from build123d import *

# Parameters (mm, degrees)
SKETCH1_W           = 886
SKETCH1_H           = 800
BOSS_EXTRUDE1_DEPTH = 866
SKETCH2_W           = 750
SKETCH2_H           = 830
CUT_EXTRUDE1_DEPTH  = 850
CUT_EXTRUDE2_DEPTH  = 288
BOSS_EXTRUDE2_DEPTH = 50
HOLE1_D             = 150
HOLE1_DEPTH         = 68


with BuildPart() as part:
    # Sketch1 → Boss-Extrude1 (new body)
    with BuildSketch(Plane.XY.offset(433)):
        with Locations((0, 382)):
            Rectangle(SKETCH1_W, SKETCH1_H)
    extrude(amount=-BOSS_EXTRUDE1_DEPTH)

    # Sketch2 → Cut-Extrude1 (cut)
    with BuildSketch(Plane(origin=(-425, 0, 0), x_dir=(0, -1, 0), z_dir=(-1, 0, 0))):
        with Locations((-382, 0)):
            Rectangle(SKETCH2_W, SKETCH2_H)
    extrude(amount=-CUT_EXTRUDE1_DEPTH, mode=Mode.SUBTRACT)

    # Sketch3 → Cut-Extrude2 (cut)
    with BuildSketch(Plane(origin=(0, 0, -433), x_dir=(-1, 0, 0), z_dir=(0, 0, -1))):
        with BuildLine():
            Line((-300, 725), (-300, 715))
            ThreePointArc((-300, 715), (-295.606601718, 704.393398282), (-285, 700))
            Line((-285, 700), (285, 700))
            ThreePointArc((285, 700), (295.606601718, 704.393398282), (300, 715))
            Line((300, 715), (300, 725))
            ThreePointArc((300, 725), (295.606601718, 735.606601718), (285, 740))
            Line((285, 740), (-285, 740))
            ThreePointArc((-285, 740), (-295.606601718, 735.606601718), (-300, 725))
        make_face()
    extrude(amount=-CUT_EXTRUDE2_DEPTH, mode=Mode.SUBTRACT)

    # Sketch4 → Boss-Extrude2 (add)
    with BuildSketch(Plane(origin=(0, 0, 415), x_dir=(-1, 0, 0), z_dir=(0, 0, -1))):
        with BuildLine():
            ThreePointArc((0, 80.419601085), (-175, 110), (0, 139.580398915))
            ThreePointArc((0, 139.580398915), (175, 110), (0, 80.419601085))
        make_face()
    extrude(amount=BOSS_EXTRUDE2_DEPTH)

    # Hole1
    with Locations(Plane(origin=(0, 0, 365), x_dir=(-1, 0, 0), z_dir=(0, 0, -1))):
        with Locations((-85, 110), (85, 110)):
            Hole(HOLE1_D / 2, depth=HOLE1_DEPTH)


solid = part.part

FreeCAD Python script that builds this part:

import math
import FreeCAD as App
import Part
import Sketcher
from FreeCAD import Vector
Q = App.Units.Quantity


def add_polygon(sketch, points):
    """Adds a closed chain of lines whose ends are joined by coincident constraints."""
    first, n = sketch.GeometryCount, len(points)
    for a, b in zip(points, points[1:] + points[:1]):
        sketch.addGeometry(Part.LineSegment(App.Vector(*a, 0), App.Vector(*b, 0)), False)
    for i in range(n):
        sketch.addConstraint(Sketcher.Constraint("Coincident", first + i, 2, first + (i + 1) % n, 1))

doc = App.newDocument("Part")
body = doc.addObject("PartDesign::Body", "Body")

# Sketch on XY plane
sketch1 = body.newObject("Sketcher::SketchObject", "Sketch")
sketch1.AttachmentSupport = (doc.getObject("XY_Plane"), [""])
sketch1.MapMode = "FlatFace"
sketch1.AttachmentOffset = App.Placement(Vector(0, 0, 433), App.Rotation())
add_polygon(sketch1, [(-443, 782), (-443, -18), (443, -18), (443, 782)])  # lines 0-3
sketch1.addConstraint([
    Sketcher.Constraint("Vertical", 0),
    Sketcher.Constraint("Horizontal", 1),
    Sketcher.Constraint("Vertical", 2),
    Sketcher.Constraint("Horizontal", 3),
    Sketcher.Constraint("DistanceX", 1, 1, 1, 2, Q("886 mm")),
    Sketcher.Constraint("DistanceY", 0, 2, 0, 1, Q("800 mm")),
    Sketcher.Constraint("DistanceX", 0, 2, -1, 1, Q("443 mm")),
    Sketcher.Constraint("DistanceY", 0, 2, -1, 1, Q("18 mm")),
])
pad1 = body.newObject("PartDesign::Pad", "Pad")
pad1.Profile = sketch1
pad1.Length = 866
pad1.Reversed = True

# Sketch on YZ plane
sketch2 = body.newObject("Sketcher::SketchObject", "Sketch001")
sketch2.AttachmentSupport = (doc.getObject("YZ_Plane"), [""])
sketch2.MapMode = "FlatFace"
sketch2.AttachmentOffset = App.Placement(Vector(0, 0, -425), App.Rotation())
add_polygon(sketch2, [(757, 415), (757, -415), (7, -415), (7, 415)])  # lines 0-3
sketch2.addConstraint([
    Sketcher.Constraint("Vertical", 0),
    Sketcher.Constraint("Horizontal", 1),
    Sketcher.Constraint("Vertical", 2),
    Sketcher.Constraint("Horizontal", 3),
    Sketcher.Constraint("DistanceX", 1, 2, 1, 1, Q("750 mm")),
    Sketcher.Constraint("DistanceY", 0, 2, 0, 1, Q("830 mm")),
    Sketcher.Constraint("DistanceX", -1, 1, 0, 2, Q("757 mm")),
    Sketcher.Constraint("DistanceY", 0, 2, -1, 1, Q("415 mm")),
])
pocket1 = body.newObject("PartDesign::Pocket", "Pocket")
pocket1.Profile = sketch2
pocket1.Length = 850
pocket1.Reversed = True

# Sketch on XY plane
sketch3 = body.newObject("Sketcher::SketchObject", "Sketch002")
sketch3.AttachmentSupport = (doc.getObject("XY_Plane"), [""])
sketch3.MapMode = "FlatFace"
sketch3.AttachmentOffset = App.Placement(Vector(0, 0, -433), App.Rotation())
sketch3.addGeometry([
    Part.LineSegment(Vector(300, 725, 0), Vector(300, 715, 0)),  # 0
    Part.ArcOfCircle(Part.Circle(Vector(285, 715, 0), Vector(0, 0, 1), 15), math.radians(-90), math.radians(0)),  # 1
    Part.LineSegment(Vector(285, 700, 0), Vector(-285, 700, 0)),  # 2
    Part.ArcOfCircle(Part.Circle(Vector(-285, 715, 0), Vector(0, 0, 1), 15), math.radians(180), math.radians(270)),  # 3
    Part.LineSegment(Vector(-300, 715, 0), Vector(-300, 725, 0)),  # 4
    Part.ArcOfCircle(Part.Circle(Vector(-285, 725, 0), Vector(0, 0, 1), 15), math.radians(90), math.radians(180)),  # 5
    Part.LineSegment(Vector(-285, 740, 0), Vector(285, 740, 0)),  # 6
    Part.ArcOfCircle(Part.Circle(Vector(285, 725, 0), Vector(0, 0, 1), 15), math.radians(0), math.radians(90)),  # 7
], False)
sketch3.addConstraint([
    Sketcher.Constraint("Tangent", 0, 2, 1, 2),
    Sketcher.Constraint("Tangent", 1, 1, 2, 1),
    Sketcher.Constraint("Tangent", 2, 2, 3, 2),
    Sketcher.Constraint("Tangent", 3, 1, 4, 1),
    Sketcher.Constraint("Tangent", 4, 2, 5, 2),
    Sketcher.Constraint("Tangent", 5, 1, 6, 1),
    Sketcher.Constraint("Tangent", 6, 2, 7, 2),
    Sketcher.Constraint("Tangent", 7, 1, 0, 1),
    Sketcher.Constraint("Vertical", 0),
    Sketcher.Constraint("Horizontal", 2),
    Sketcher.Constraint("Vertical", 4),
    Sketcher.Constraint("Horizontal", 6),
    Sketcher.Constraint("Equal", 1, 3),
    Sketcher.Constraint("Equal", 3, 5),
    Sketcher.Constraint("Equal", 5, 7),
    Sketcher.Constraint("Radius", 1, Q("15 mm")),
    Sketcher.Constraint("DistanceX", 2, 2, 2, 1, Q("570 mm")),
    Sketcher.Constraint("DistanceY", 0, 2, 0, 1, Q("10 mm")),
    Sketcher.Constraint("DistanceX", -1, 1, 1, 3, Q("285 mm")),
    Sketcher.Constraint("DistanceY", -1, 1, 1, 3, Q("715 mm")),
])
pocket2 = body.newObject("PartDesign::Pocket", "Pocket001")
pocket2.Profile = sketch3
pocket2.Length = 288
pocket2.Reversed = True

# Sketch on XY plane
sketch4 = body.newObject("Sketcher::SketchObject", "Sketch003")
sketch4.AttachmentSupport = (doc.getObject("XY_Plane"), [""])
sketch4.MapMode = "FlatFace"
sketch4.AttachmentOffset = App.Placement(Vector(0, 0, 415), App.Rotation())
sketch4.addGeometry([
    Part.ArcOfCircle(Part.Circle(Vector(85, 110, 0), Vector(0, 0, 1), 90), math.radians(-161), math.radians(161)),
    Part.ArcOfCircle(Part.Circle(Vector(-85, 110, 0), Vector(0, 0, 1), 90), math.radians(19), math.radians(341)),
], False)
sketch4.addConstraint([
    Sketcher.Constraint("Coincident", 0, 1, 1, 2),
    Sketcher.Constraint("Coincident", 1, 1, 0, 2),
    Sketcher.Constraint("Equal", 0, 1),
    Sketcher.Constraint("Symmetric", 0, 3, 1, 3, -2),
    Sketcher.Constraint("Radius", 0, Q("90 mm")),
    Sketcher.Constraint("DistanceX", -1, 1, 0, 3, Q("85 mm")),
    Sketcher.Constraint("DistanceY", -1, 1, 0, 3, Q("110 mm")),
])
pad2 = body.newObject("PartDesign::Pad", "Pad001")
pad2.Profile = sketch4
pad2.Length = 50
pad2.Reversed = True

# Sketch on XY plane
sketch5 = body.newObject("Sketcher::SketchObject", "Sketch004")
sketch5.AttachmentSupport = (doc.getObject("XY_Plane"), [""])
sketch5.MapMode = "FlatFace"
sketch5.AttachmentOffset = App.Placement(Vector(0, 0, 365), App.Rotation())
sketch5.addGeometry([
    Part.Circle(Vector(85, 110, 0), Vector(0, 0, 1), 75),
    Part.Circle(Vector(-85, 110, 0), Vector(0, 0, 1), 75),
], False)
sketch5.addConstraint([
    Sketcher.Constraint("Equal", 0, 1),
    Sketcher.Constraint("Symmetric", 0, 3, 1, 3, -2),
    Sketcher.Constraint("Diameter", 0, Q("150 mm")),
    Sketcher.Constraint("DistanceX", -1, 1, 0, 3, Q("85 mm")),
    Sketcher.Constraint("DistanceY", -1, 1, 0, 3, Q("110 mm")),
])
doc.recompute()
hole = body.newObject("PartDesign::Hole", "Hole")
hole.Profile = sketch5
hole.ThreadType = "None"
hole.Diameter = 150
hole.DepthType = "Dimension"
hole.Depth = 68
hole.DrillPoint = "Flat"
hole.Reversed = True

doc.recompute()
